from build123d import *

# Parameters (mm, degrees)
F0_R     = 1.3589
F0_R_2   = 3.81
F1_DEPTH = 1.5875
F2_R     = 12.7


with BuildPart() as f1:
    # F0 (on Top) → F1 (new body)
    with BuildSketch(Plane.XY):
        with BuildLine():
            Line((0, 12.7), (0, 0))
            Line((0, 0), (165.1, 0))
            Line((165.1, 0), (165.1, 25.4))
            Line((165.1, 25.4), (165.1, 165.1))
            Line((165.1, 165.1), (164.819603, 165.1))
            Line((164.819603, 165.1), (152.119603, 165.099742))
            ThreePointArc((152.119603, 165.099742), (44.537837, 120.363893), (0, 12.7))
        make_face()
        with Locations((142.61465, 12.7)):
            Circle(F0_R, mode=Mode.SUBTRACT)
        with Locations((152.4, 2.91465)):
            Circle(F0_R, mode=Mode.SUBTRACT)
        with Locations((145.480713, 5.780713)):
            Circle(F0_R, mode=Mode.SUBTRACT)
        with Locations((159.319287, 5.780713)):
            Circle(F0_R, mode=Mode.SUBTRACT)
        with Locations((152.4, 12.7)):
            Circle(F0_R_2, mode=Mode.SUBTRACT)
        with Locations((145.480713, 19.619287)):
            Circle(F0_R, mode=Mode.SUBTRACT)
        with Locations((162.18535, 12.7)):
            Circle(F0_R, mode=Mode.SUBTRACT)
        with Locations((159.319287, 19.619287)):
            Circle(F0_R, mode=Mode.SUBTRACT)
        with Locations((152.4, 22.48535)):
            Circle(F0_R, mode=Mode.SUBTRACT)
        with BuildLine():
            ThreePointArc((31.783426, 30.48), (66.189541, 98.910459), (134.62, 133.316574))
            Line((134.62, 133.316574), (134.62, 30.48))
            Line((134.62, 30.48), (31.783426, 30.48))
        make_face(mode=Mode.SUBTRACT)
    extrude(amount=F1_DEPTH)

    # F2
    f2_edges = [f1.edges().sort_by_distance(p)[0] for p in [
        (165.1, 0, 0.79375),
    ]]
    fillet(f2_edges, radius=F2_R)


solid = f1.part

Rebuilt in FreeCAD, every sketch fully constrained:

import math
import FreeCAD as App
import Part
import Sketcher
from FreeCAD import Vector
Q = App.Units.Quantity


def edges_at(feature, points):
    """Names of the edges that pass closest to the given points."""
    edges = feature.Shape.Edges
    near = lambda p: min(range(len(edges)), key=lambda i: edges[i].distToShape(Part.Vertex(*p))[0])
    return sorted({f"Edge{near(p) + 1}" for p in points})

doc = App.newDocument("Part")
params = doc.addObject("Spreadsheet::Sheet", "Params")
for row, (alias, value) in enumerate([
    ("sketch1_radius", "6 in"),
    ("sketch1_diameter", "0.3 in"),
    ("sketch1_radius2", "4.7999999 in"),
    ("sketch1_diameter2", "0.107 in"),
    ("sketch1_width", "6.5 in"),
    ("pad1_length", "0.0625 in"),
    ("fillet_radius", "0.5 in"),
], start=1):
    params.set(f"A{row}", alias)
    params.set(f"B{row}", "=" + value)
    params.setAlias(f"B{row}", alias)

body = doc.addObject("PartDesign::Body", "Body")

sketch1 = body.newObject("Sketcher::SketchObject", "Sketch")
sketch1.AttachmentSupport = (doc.getObject("XY_Plane"), [""])
sketch1.MapMode = "FlatFace"
sketch1.addGeometry([
    Part.LineSegment(Vector(0, 12.7, 0), Vector(0, 0, 0)),
    Part.LineSegment(Vector(0, 0, 0), Vector(165.1, 0, 0)),
    Part.LineSegment(Vector(165.1, 0, 0), Vector(165.1, 165.1, 0)),
    Part.LineSegment(Vector(165.1, 165.1, 0), Vector(164.82, 165.1, 0)),
    Part.LineSegment(Vector(164.82, 165.1, 0), Vector(152.12, 165.1, 0)),
    Part.ArcOfCircle(Part.Circle(Vector(152.4, 12.7, 0), Vector(0, 0, 1), 152.4), math.radians(90), math.radians(180)),
    Part.Circle(Vector(145.48, 5.78, 0), Vector(0, 0, 1), 1.36),
    Part.Circle(Vector(142.61, 12.7, 0), Vector(0, 0, 1), 1.36),
    Part.Circle(Vector(152.4, 2.91, 0), Vector(0, 0, 1), 1.36),
    Part.Circle(Vector(159.32, 5.78, 0), Vector(0, 0, 1), 1.36),
    Part.Circle(Vector(152.4, 12.7, 0), Vector(0, 0, 1), 3.81),
    Part.Circle(Vector(162.19, 12.7, 0), Vector(0, 0, 1), 1.36),
    Part.Circle(Vector(145.48, 19.62, 0), Vector(0, 0, 1), 1.36),
    Part.Circle(Vector(152.4, 22.49, 0), Vector(0, 0, 1), 1.36),
    Part.Circle(Vector(159.32, 19.62, 0), Vector(0, 0, 1), 1.36),
    Part.LineSegment(Vector(134.62, 30.48, 0), Vector(31.78, 30.48, 0)),
    Part.ArcOfCircle(Part.Circle(Vector(152.4, 12.7, 0), Vector(0, 0, 1), 121.92), math.radians(98), math.radians(172)),
    Part.LineSegment(Vector(134.62, 133.32, 0), Vector(134.62, 30.48, 0)),
], False)
sketch1.addConstraint([
    Sketcher.Constraint("Coincident", 0, 2, 1, 1),
    Sketcher.Constraint("Coincident", 1, 2, 2, 1),
    Sketcher.Constraint("Coincident", 2, 2, 3, 1),
    Sketcher.Constraint("Coincident", 3, 2, 4, 1),
    Sketcher.Constraint("Coincident", 4, 2, 5, 1),
    Sketcher.Constraint("Tangent", 5, 2, 0, 1),
    Sketcher.Constraint("Coincident", 15, 2, 16, 2),
    Sketcher.Constraint("Coincident", 16, 1, 17, 1),
    Sketcher.Constraint("Coincident", 17, 2, 15, 1),
    Sketcher.Constraint("Vertical", 0),
    Sketcher.Constraint("Horizontal", 1),
    Sketcher.Constraint("Vertical", 2),
    Sketcher.Constraint("Horizontal", 3),
    Sketcher.Constraint("Horizontal", 15),
    Sketcher.Constraint("Vertical", 17),
    Sketcher.Constraint("Coincident", 0, 2, -1, 1),
    Sketcher.Constraint("Coincident", 10, 3, 5, 3),
    Sketcher.Constraint("Coincident", 16, 3, 5, 3),
    Sketcher.Constraint("Equal", 6, 7),
    Sketcher.Constraint("Equal", 7, 8),
    Sketcher.Constraint("Equal", 8, 9),
    Sketcher.Constraint("Equal", 9, 11),
    Sketcher.Constraint("Equal", 11, 12),
    Sketcher.Constraint("Equal", 12, 13),
    Sketcher.Constraint("Equal", 13, 14),
    Sketcher.Constraint("Horizontal", 5, 3, 7, 3),
    Sketcher.Constraint("Horizontal", 6, 3, 9, 3),
    Sketcher.Constraint("Horizontal", 10, 3, 11, 3),
    Sketcher.Constraint("Horizontal", 12, 3, 14, 3),
    Sketcher.Constraint("Vertical", 5, 3, 8, 3),
    Sketcher.Constraint("Vertical", 6, 3, 12, 3),
    Sketcher.Constraint("Vertical", 10, 3, 13, 3),
    Sketcher.Constraint("Vertical", 9, 3, 14, 3),
    Sketcher.Constraint("Equal", 1, 2),
    Sketcher.Constraint("Equal", 15, 17),
    Sketcher.Constraint("Radius", 5, Q("6 in")),
    Sketcher.Constraint("Diameter", 10, Q("0.3 in")),
    Sketcher.Constraint("Radius", 16, Q("4.7999999 in")),
    Sketcher.Constraint("Diameter", 6, Q("0.107 in")),
    Sketcher.Constraint("DistanceX", 1, 1, 1, 2, Q("6.5 in")),
    Sketcher.Constraint("DistanceY", 0, 2, 0, 1, Q("0.5 in")),
    Sketcher.Constraint("Distance", 4, Q("0.5 in")),
    Sketcher.Constraint("DistanceY", -1, 1, 15, 2, Q("1.2 in")),
    Sketcher.Constraint("DistanceX", 3, 2, 3, 1, Q("0.280397 mm")),
    Sketcher.Constraint("DistanceX", -1, 1, 7, 3, Q("142.61465 mm")),
    Sketcher.Constraint("DistanceY", -1, 1, 8, 3, Q("2.91465 mm")),
    Sketcher.Constraint("DistanceX", -1, 1, 11, 3, Q("162.18535 mm")),
    Sketcher.Constraint("DistanceY", -1, 1, 13, 3, Q("22.48535 mm")),
    Sketcher.Constraint("DistanceX", 12, 3, 3, 2, Q("19.33889 mm")),
    Sketcher.Constraint("DistanceY", -1, 1, 6, 3, Q("5.780713 mm")),
    Sketcher.Constraint("DistanceX", -1, 1, 9, 3, Q("159.319287 mm")),
    Sketcher.Constraint("DistanceY", -1, 1, 12, 3, Q("19.619287 mm")),
])
sketch1.setExpression("Constraints[35]", "Params.sketch1_radius")
sketch1.setExpression("Constraints[36]", "Params.sketch1_diameter")
sketch1.setExpression("Constraints[37]", "Params.sketch1_radius2")
sketch1.setExpression("Constraints[38]", "Params.sketch1_diameter2")
sketch1.setExpression("Constraints[39]", "Params.sketch1_width")
pad1 = body.newObject("PartDesign::Pad", "Pad")
pad1.Profile = sketch1
pad1.setExpression("Length", "Params.pad1_length")
doc.recompute()

fillet = body.newObject("PartDesign::Fillet", "Fillet")
fillet.Base = (pad1, edges_at(pad1, [(165.1, 0, 0.794)]))
fillet.setExpression("Radius", "Params.fillet_radius")

doc.recompute()
